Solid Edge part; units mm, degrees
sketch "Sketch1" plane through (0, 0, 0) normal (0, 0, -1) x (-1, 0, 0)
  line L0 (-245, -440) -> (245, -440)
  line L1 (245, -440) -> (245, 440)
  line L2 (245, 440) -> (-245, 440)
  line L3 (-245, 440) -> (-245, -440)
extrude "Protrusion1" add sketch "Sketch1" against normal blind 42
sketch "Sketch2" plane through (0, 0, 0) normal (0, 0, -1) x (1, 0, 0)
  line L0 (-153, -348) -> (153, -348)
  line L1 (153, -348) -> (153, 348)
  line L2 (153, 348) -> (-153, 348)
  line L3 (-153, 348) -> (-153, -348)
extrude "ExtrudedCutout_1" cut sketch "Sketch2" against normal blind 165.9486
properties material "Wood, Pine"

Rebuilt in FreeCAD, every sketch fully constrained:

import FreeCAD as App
import Part
import Sketcher
Q = App.Units.Quantity

doc = App.newDocument("Part")
body = doc.addObject("PartDesign::Body", "Body")

sketch1 = body.newObject("Sketcher::SketchObject", "Sketch")
sketch1.AttachmentSupport = (doc.getObject("XY_Plane"), [""])
sketch1.MapMode = "FlatFace"
sketch1.addGeometry(Part.LineSegment(App.Vector(245, 440, 0), App.Vector(245, -440, 0)), False)
sketch1.addGeometry(Part.LineSegment(App.Vector(245, -440, 0), App.Vector(-245, -440, 0)), False)
sketch1.addGeometry(Part.LineSegment(App.Vector(-245, -440, 0), App.Vector(-245, 440, 0)), False)
sketch1.addGeometry(Part.LineSegment(App.Vector(-245, 440, 0), App.Vector(245, 440, 0)), False)
sketch1.addConstraint(Sketcher.Constraint("Coincident", 0, 2, 1, 1))
sketch1.addConstraint(Sketcher.Constraint("Coincident", 1, 2, 2, 1))
sketch1.addConstraint(Sketcher.Constraint("Coincident", 2, 2, 3, 1))
sketch1.addConstraint(Sketcher.Constraint("Coincident", 3, 2, 0, 1))
sketch1.addConstraint(Sketcher.Constraint("Vertical", 0))
sketch1.addConstraint(Sketcher.Constraint("Horizontal", 1))
sketch1.addConstraint(Sketcher.Constraint("Vertical", 2))
sketch1.addConstraint(Sketcher.Constraint("Horizontal", 3))
sketch1.addConstraint(Sketcher.Constraint("Symmetric", 0, 2, 2, 2, -1, 1))
sketch1.addConstraint(Sketcher.Constraint("DistanceX", 1, 2, 1, 1, Q("490 mm")))
sketch1.addConstraint(Sketcher.Constraint("DistanceY", 0, 2, 0, 1, Q("880 mm")))
pad1 = body.newObject("PartDesign::Pad", "Pad")
pad1.Profile = sketch1
pad1.Length = 42

sketch2 = body.newObject("Sketcher::SketchObject", "Sketch001")
sketch2.AttachmentSupport = (doc.getObject("XY_Plane"), [""])
sketch2.MapMode = "FlatFace"
sketch2.addGeometry(Part.LineSegment(App.Vector(-153, -348, 0), App.Vector(-153, 348, 0)), False)
sketch2.addGeometry(Part.LineSegment(App.Vector(-153, 348, 0), App.Vector(153, 348, 0)), False)
sketch2.addGeometry(Part.LineSegment(App.Vector(153, 348, 0), App.Vector(153, -348, 0)), False)
sketch2.addGeometry(Part.LineSegment(App.Vector(153, -348, 0), App.Vector(-153, -348, 0)), False)
sketch2.addConstraint(Sketcher.Constraint("Coincident", 0, 2, 1, 1))
sketch2.addConstraint(Sketcher.Constraint("Coincident", 1, 2, 2, 1))
sketch2.addConstraint(Sketcher.Constraint("Coincident", 2, 2, 3, 1))
sketch2.addConstraint(Sketcher.Constraint("Coincident", 3, 2, 0, 1))
sketch2.addConstraint(Sketcher.Constraint("Vertical", 0))
sketch2.addConstraint(Sketcher.Constraint("Horizontal", 1))
sketch2.addConstraint(Sketcher.Constraint("Vertical", 2))
sketch2.addConstraint(Sketcher.Constraint("Horizontal", 3))
sketch2.addConstraint(Sketcher.Constraint("Symmetric", 0, 2, 2, 2, -1, 1))
sketch2.addConstraint(Sketcher.Constraint("DistanceX", 1, 1, 1, 2, Q("306 mm")))
sketch2.addConstraint(Sketcher.Constraint("DistanceY", 0, 1, 0, 2, Q("696 mm")))
pocket1 = body.newObject("PartDesign::Pocket", "Pocket")
pocket1.Profile = sketch2
pocket1.Length = 165.9486
pocket1.Reversed = True

doc.recompute()
